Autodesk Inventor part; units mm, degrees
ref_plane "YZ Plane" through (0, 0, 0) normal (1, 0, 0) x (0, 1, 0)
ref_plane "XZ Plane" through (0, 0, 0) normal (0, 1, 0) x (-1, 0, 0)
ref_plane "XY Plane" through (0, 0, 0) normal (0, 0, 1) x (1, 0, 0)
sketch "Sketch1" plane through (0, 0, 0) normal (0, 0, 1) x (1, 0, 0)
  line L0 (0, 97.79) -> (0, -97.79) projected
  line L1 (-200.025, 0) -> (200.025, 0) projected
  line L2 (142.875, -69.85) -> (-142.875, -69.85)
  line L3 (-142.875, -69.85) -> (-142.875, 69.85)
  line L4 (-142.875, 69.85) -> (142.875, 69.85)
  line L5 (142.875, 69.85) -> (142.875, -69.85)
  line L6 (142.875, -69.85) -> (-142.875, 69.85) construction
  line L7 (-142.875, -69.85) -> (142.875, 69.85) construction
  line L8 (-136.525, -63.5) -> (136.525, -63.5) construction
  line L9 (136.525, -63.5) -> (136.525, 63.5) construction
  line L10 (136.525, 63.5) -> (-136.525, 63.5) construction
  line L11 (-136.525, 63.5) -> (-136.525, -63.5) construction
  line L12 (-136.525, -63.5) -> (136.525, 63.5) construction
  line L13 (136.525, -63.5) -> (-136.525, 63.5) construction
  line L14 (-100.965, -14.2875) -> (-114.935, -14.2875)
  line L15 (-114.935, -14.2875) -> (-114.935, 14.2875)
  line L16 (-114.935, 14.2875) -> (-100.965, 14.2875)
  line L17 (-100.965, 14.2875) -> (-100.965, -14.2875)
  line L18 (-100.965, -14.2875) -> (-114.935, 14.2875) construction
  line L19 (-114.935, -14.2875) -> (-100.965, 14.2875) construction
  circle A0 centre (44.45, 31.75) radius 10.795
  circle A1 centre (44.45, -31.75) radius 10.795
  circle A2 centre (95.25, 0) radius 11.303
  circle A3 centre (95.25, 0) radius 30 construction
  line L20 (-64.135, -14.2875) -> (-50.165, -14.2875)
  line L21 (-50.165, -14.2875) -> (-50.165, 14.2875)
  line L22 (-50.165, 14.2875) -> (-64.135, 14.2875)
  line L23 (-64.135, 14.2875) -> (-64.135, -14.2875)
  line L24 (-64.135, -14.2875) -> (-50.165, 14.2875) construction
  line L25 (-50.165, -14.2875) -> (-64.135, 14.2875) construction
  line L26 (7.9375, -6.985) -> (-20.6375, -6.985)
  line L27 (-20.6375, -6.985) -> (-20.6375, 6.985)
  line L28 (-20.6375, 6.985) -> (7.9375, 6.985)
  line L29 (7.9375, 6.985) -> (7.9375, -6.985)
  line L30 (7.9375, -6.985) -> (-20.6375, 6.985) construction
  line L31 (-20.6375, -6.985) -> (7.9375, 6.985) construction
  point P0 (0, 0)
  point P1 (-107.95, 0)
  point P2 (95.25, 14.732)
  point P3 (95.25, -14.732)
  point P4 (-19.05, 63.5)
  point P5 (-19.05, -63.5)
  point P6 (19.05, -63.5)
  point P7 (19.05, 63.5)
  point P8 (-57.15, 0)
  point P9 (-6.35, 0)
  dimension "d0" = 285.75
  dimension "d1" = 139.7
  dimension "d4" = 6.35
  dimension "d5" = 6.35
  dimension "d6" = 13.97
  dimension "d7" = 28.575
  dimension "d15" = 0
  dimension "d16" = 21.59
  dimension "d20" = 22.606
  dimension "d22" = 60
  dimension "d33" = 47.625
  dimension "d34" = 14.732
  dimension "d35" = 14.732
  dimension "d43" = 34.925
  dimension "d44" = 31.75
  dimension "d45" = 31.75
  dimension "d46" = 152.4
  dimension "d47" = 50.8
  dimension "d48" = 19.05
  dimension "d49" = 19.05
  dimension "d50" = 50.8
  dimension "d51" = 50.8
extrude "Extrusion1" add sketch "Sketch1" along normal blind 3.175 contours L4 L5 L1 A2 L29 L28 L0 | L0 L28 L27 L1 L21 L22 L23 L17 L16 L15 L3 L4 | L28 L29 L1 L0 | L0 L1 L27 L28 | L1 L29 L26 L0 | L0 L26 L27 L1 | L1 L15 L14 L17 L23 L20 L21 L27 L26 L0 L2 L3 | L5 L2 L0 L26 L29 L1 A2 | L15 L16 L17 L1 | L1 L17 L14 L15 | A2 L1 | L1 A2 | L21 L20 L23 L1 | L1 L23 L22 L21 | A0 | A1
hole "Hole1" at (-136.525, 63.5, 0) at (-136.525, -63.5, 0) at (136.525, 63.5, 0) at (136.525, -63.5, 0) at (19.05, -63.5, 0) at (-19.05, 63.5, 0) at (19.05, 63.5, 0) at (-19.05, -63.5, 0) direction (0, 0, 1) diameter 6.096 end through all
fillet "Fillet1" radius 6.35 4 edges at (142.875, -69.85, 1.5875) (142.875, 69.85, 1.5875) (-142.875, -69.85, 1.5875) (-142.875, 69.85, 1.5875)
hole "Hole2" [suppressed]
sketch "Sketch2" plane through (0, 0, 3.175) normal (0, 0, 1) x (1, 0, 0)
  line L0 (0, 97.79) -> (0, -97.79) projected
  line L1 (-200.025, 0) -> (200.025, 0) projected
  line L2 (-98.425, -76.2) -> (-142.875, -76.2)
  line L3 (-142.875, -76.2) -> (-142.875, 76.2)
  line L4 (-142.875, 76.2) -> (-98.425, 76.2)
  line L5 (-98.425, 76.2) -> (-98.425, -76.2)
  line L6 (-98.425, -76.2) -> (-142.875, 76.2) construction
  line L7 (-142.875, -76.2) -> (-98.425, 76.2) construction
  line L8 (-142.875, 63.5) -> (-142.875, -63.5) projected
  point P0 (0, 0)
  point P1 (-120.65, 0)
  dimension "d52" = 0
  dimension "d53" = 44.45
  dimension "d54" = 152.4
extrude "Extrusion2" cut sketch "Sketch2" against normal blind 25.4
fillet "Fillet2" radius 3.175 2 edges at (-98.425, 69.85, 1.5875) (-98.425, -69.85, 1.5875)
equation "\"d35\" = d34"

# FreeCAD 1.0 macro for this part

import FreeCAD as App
import Part
import Sketcher
from FreeCAD import Vector
Q = App.Units.Quantity


def edges_at(feature, points):
    """Names of the edges that pass closest to the given points."""
    edges = feature.Shape.Edges
    near = lambda p: min(range(len(edges)), key=lambda i: edges[i].distToShape(Part.Vertex(*p))[0])
    return sorted({f"Edge{near(p) + 1}" for p in points})


def add_polygon(sketch, points):
    """Adds a closed chain of lines whose ends are joined by coincident constraints."""
    first, n = sketch.GeometryCount, len(points)
    for a, b in zip(points, points[1:] + points[:1]):
        sketch.addGeometry(Part.LineSegment(App.Vector(*a, 0), App.Vector(*b, 0)), False)
    for i in range(n):
        sketch.addConstraint(Sketcher.Constraint("Coincident", first + i, 2, first + (i + 1) % n, 1))

doc = App.newDocument("Part")
body = doc.addObject("PartDesign::Body", "Body")

# Sketch on XY plane
sketch1 = doc.addObject("Sketcher::SketchObject", "Sketch")
body.addObject(sketch1)
sketch1.AttachmentSupport = (doc.XY_Plane, [""])
sketch1.MapMode = "FlatFace"
add_polygon(sketch1, [(143, 70), (-143, 70), (-143, -70), (143, -70)])  # lines 0-3
sketch1.addConstraint([
    Sketcher.Constraint("Horizontal", 0),
    Sketcher.Constraint("Vertical", 1),
    Sketcher.Constraint("Horizontal", 2),
    Sketcher.Constraint("Vertical", 3),
    Sketcher.Constraint("Symmetric", 0, 2, 2, 2, -1, 1),
    Sketcher.Constraint("DistanceY", 1, 2, 1, 1, Q("5.5 in")),
    Sketcher.Constraint("DistanceX", 0, 2, 0, 1, Q("11.25 in")),
])
pad1 = doc.addObject("PartDesign::Pad", "Pad")
body.addObject(pad1)
pad1.Profile = sketch1
pad1.Length = Q("0.125 in")

# Sketch on XY plane
sketch2 = doc.addObject("Sketcher::SketchObject", "Sketch001")
body.addObject(sketch2)
sketch2.AttachmentSupport = (doc.XY_Plane, [""])
sketch2.MapMode = "FlatFace"
sketch2.addGeometry([
    Part.Circle(Vector(-136.5, 63.5, 0), Vector(0, 0, 1), 3),  # 0
    Part.Circle(Vector(-136.5, -63.5, 0), Vector(0, 0, 1), 3),  # 1
    Part.Circle(Vector(136.5, 63.5, 0), Vector(0, 0, 1), 3),  # 2
    Part.Circle(Vector(136.5, -63.5, 0), Vector(0, 0, 1), 3),  # 3
    Part.Circle(Vector(19.1, -63.5, 0), Vector(0, 0, 1), 3),  # 4
    Part.Circle(Vector(-19.1, 63.5, 0), Vector(0, 0, 1), 3),  # 5
    Part.Circle(Vector(19.1, 63.5, 0), Vector(0, 0, 1), 3),  # 6
    Part.Circle(Vector(-19.1, -63.5, 0), Vector(0, 0, 1), 3),  # 7
], False)
sketch2.addConstraint([
    Sketcher.Constraint("Equal", 0, 1),
    Sketcher.Constraint("Equal", 1, 2),
    Sketcher.Constraint("Equal", 2, 3),
    Sketcher.Constraint("Equal", 3, 4),
    Sketcher.Constraint("Equal", 4, 5),
    Sketcher.Constraint("Equal", 5, 6),
    Sketcher.Constraint("Equal", 6, 7),
    Sketcher.Constraint("Symmetric", 1, 3, 2, 3, -1, 1),
    Sketcher.Constraint("Symmetric", 0, 3, 3, 3, -1, 1),
    Sketcher.Constraint("Symmetric", 4, 3, 5, 3, -1, 1),
    Sketcher.Constraint("Symmetric", 6, 3, 7, 3, -1, 1),
    Sketcher.Constraint("Symmetric", 0, 3, 2, 3, -2),
    Sketcher.Constraint("Symmetric", 5, 3, 6, 3, -2),
    Sketcher.Constraint("Horizontal", 3, 3, 4, 3),
    Sketcher.Constraint("Diameter", 0, Q("0.24 in")),
    Sketcher.Constraint("DistanceY", 1, 3, 0, 3, Q("5 in")),
    Sketcher.Constraint("DistanceX", 5, 3, 4, 3, Q("1.5 in")),
    Sketcher.Constraint("DistanceX", 0, 3, 2, 3, Q("10.75 in")),
])
doc.recompute()
hole = doc.addObject("PartDesign::Hole", "Hole")
body.addObject(hole)
hole.Profile = sketch2
hole.ThreadType = "None"
hole.Diameter = Q("0.24 in")
hole.DepthType = "ThroughAll"
hole.Reversed = True
doc.recompute()

fillet = doc.addObject("PartDesign::Fillet", "Fillet")
body.addObject(fillet)
fillet.Base = (hole, edges_at(hole, [
    (142.875, -69.85, 1.587),
    (142.875, 69.85, 1.587),
    (-142.875, -69.85, 1.587),
    (-142.875, 69.85, 1.587),
]))
fillet.Radius = Q("0.25 in")

# Sketch on XY plane
sketch3 = doc.addObject("Sketcher::SketchObject", "Sketch002")
body.addObject(sketch3)
sketch3.AttachmentSupport = (doc.XY_Plane, [""])
sketch3.MapMode = "FlatFace"
sketch3.AttachmentOffset = App.Placement(Vector(0, 0, 0.125 * 25.4), App.Rotation())
add_polygon(sketch3, [(-143, -76), (-98, -76), (-98, 76), (-143, 76)])  # lines 0-3
sketch3.addConstraint([
    Sketcher.Constraint("Horizontal", 0),
    Sketcher.Constraint("Vertical", 1),
    Sketcher.Constraint("Horizontal", 2),
    Sketcher.Constraint("Vertical", 3),
    Sketcher.Constraint("DistanceY", 1, 1, 1, 2, Q("6 in")),
    Sketcher.Constraint("DistanceX", 0, 1, 0, 2, Q("1.75 in")),
    Sketcher.Constraint("DistanceY", 0, 2, -1, 1, Q("3 in")),
    Sketcher.Constraint("DistanceX", 0, 2, -1, 1, Q("3.875 in")),
])
pocket1 = doc.addObject("PartDesign::Pocket", "Pocket")
body.addObject(pocket1)
pocket1.Profile = sketch3
pocket1.Length = Q("1 in")
doc.recompute()

fillet2 = doc.addObject("PartDesign::Fillet", "Fillet001")
body.addObject(fillet2)
fillet2.Base = (pocket1, edges_at(pocket1, [(-98.425, 69.85, 1.587), (-98.425, -69.85, 1.587)]))
fillet2.Radius = Q("0.125 in")

doc.recompute()
